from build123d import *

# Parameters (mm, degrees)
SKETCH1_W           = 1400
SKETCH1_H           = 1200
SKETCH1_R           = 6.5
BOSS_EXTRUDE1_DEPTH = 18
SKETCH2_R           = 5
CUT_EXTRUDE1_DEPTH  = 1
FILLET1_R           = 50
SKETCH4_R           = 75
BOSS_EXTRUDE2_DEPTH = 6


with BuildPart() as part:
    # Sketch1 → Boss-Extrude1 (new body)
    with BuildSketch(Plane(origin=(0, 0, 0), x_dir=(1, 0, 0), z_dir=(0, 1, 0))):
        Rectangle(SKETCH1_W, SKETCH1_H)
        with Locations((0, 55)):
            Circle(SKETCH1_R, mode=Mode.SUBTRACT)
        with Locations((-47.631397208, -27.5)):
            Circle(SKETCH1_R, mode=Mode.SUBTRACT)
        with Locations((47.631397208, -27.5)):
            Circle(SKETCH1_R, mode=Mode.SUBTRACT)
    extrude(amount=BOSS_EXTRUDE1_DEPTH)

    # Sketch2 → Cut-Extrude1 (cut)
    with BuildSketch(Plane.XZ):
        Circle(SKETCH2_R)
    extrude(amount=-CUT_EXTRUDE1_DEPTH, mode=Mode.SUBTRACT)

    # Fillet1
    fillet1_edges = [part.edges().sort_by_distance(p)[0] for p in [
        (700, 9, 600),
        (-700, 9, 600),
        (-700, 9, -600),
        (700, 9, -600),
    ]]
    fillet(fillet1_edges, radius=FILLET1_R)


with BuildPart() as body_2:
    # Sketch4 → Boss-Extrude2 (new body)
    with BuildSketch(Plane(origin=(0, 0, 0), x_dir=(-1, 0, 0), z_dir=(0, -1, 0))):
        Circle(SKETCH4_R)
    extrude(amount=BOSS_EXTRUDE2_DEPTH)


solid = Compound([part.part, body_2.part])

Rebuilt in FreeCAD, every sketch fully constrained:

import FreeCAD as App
import Part
import Sketcher


def edges_at(feature, points):
    """Names of the edges that pass closest to the given points."""
    edges = feature.Shape.Edges
    near = lambda p: min(range(len(edges)), key=lambda i: edges[i].distToShape(Part.Vertex(*p))[0])
    return sorted({f"Edge{near(p) + 1}" for p in points})

doc = App.newDocument("Part")
body = doc.addObject("PartDesign::Body", "Body")

# Sketch on XZ plane
sketch1 = body.newObject("Sketcher::SketchObject", "Sketch")
sketch1.AttachmentSupport = (doc.getObject("XZ_Plane"), [""])
sketch1.MapMode = "FlatFace"
sketch1.addGeometry([
    Part.LineSegment(App.Vector(-700, -600, 0), App.Vector(-700, 600, 0)),  # 0
    Part.LineSegment(App.Vector(-700, 600, 0), App.Vector(700, 600, 0)),  # 1
    Part.LineSegment(App.Vector(700, 600, 0), App.Vector(700, -600, 0)),  # 2
    Part.LineSegment(App.Vector(700, -600, 0), App.Vector(-700, -600, 0)),  # 3
    Part.Circle(App.Vector(-48, 28, 0), App.Vector(0, 0, 1), 6),  # 4
    Part.Circle(App.Vector(48, 28, 0), App.Vector(0, 0, 1), 6),  # 5
    Part.Circle(App.Vector(0, -55, 0), App.Vector(0, 0, 1), 6),  # 6
], False)
sketch1.addConstraint([
    Sketcher.Constraint("Coincident", 0, 2, 1, 1),
    Sketcher.Constraint("Coincident", 1, 2, 2, 1),
    Sketcher.Constraint("Coincident", 2, 2, 3, 1),
    Sketcher.Constraint("Coincident", 3, 2, 0, 1),
    Sketcher.Constraint("Vertical", 0),
    Sketcher.Constraint("Horizontal", 1),
    Sketcher.Constraint("Vertical", 2),
    Sketcher.Constraint("Horizontal", 3),
    Sketcher.Constraint("Equal", 4, 5),
    Sketcher.Constraint("Equal", 5, 6),
    Sketcher.Constraint("Symmetric", 0, 2, 2, 2, -1, 1),
    Sketcher.Constraint("Symmetric", 4, 3, 5, 3, -2),
    Sketcher.Constraint("PointOnObject", 6, 3, -2),
    Sketcher.Constraint("Diameter", 4, 13.0),
    Sketcher.Constraint("DistanceX", 1, 1, 1, 2, 1400.0),
    Sketcher.Constraint("DistanceY", 0, 1, 0, 2, 1200.0),
    Sketcher.Constraint("DistanceY", 6, 3, -1, 1, 55.0),
    Sketcher.Constraint("DistanceY", -1, 1, 4, 3, 27.5),
    Sketcher.Constraint("DistanceX", 4, 3, -1, 1, 47.631397),
])
pad1 = body.newObject("PartDesign::Pad", "Pad")
pad1.Profile = sketch1
pad1.Length = 18
pad1.Reversed = True

# Sketch on XZ plane
sketch2 = body.newObject("Sketcher::SketchObject", "Sketch001")
sketch2.AttachmentSupport = (doc.getObject("XZ_Plane"), [""])
sketch2.MapMode = "FlatFace"
sketch2.addGeometry(Part.Circle(App.Vector(0, 0, 0), App.Vector(0, 0, 1), 5), False)
sketch2.addConstraint([
    Sketcher.Constraint("Coincident", 0, 3, -1, 1),
    Sketcher.Constraint("Diameter", 0, 10.0),
])
pocket1 = body.newObject("PartDesign::Pocket", "Pocket")
pocket1.Profile = sketch2
pocket1.Length = 1
doc.recompute()

fillet = body.newObject("PartDesign::Fillet", "Fillet")
fillet.Base = (pocket1, edges_at(pocket1, [
    (700, 9, 600),
    (-700, 9, 600),
    (-700, 9, -600),
    (700, 9, -600),
]))
fillet.Radius = 50
body2 = doc.addObject("PartDesign::Body", "Body001")

# Sketch on XZ plane
sketch3 = body2.newObject("Sketcher::SketchObject", "Sketch002")
sketch3.AttachmentSupport = (doc.getObject("XZ_Plane001"), [""])
sketch3.MapMode = "FlatFace"
sketch3.addGeometry(Part.Circle(App.Vector(0, 0, 0), App.Vector(0, 0, 1), 75), False)
sketch3.addConstraint([
    Sketcher.Constraint("Coincident", 0, 3, -1, 1),
    Sketcher.Constraint("Diameter", 0, 150.0),
])
pad2 = body2.newObject("PartDesign::Pad", "Pad001")
pad2.Profile = sketch3
pad2.Length = 6

doc.recompute()
